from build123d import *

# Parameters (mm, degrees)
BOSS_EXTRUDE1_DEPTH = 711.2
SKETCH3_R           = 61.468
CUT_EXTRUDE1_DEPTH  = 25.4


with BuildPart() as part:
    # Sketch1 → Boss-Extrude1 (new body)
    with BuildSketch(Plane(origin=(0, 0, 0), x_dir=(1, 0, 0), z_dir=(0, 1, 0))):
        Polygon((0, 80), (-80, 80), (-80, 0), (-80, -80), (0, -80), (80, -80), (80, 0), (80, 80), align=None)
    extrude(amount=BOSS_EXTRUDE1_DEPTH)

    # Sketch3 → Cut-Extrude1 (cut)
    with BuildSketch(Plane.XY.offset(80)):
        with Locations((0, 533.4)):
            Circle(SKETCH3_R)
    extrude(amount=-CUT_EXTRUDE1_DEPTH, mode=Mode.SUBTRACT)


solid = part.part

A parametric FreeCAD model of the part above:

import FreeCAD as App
import Part
import Sketcher
Q = App.Units.Quantity


def add_polygon(sketch, points):
    """Adds a closed chain of lines whose ends are joined by coincident constraints."""
    first, n = sketch.GeometryCount, len(points)
    for a, b in zip(points, points[1:] + points[:1]):
        sketch.addGeometry(Part.LineSegment(App.Vector(*a, 0), App.Vector(*b, 0)), False)
    for i in range(n):
        sketch.addConstraint(Sketcher.Constraint("Coincident", first + i, 2, first + (i + 1) % n, 1))

doc = App.newDocument("Part")
body = doc.addObject("PartDesign::Body", "Body")

sketch1 = body.newObject("Sketcher::SketchObject", "Sketch")
sketch1.AttachmentSupport = (doc.getObject("XZ_Plane"), [""])
sketch1.MapMode = "FlatFace"
add_polygon(sketch1, [(-80, -80), (-80, 80), (80, 80), (80, -80)])
sketch1.addConstraint([
    Sketcher.Constraint("Vertical", 0),
    Sketcher.Constraint("Horizontal", 1),
    Sketcher.Constraint("Vertical", 2),
    Sketcher.Constraint("Horizontal", 3),
    Sketcher.Constraint("Symmetric", 0, 2, 2, 2, -1, 1),
    Sketcher.Constraint("Equal", 3, 0),
    Sketcher.Constraint("DistanceX", 1, 1, 1, 2, Q("160 mm")),
])
pad1 = body.newObject("PartDesign::Pad", "Pad")
pad1.Profile = sketch1
pad1.Length = Q("28 in")
pad1.Reversed = True

sketch2 = body.newObject("Sketcher::SketchObject", "Sketch001")
sketch2.AttachmentSupport = (doc.getObject("XY_Plane"), [""])
sketch2.MapMode = "FlatFace"
sketch2.AttachmentOffset = App.Placement(App.Vector(0, 0, 80), App.Rotation())
sketch2.addGeometry(Part.Circle(App.Vector(0, 533.4, 0), App.Vector(0, 0, 1), 61.468), False)
sketch2.addConstraint([
    Sketcher.Constraint("PointOnObject", 0, 3, -2),
    Sketcher.Constraint("Diameter", 0, Q("4.84 in")),
    Sketcher.Constraint("DistanceY", -1, 1, 0, 3, Q("21 in")),
])
pocket1 = body.newObject("PartDesign::Pocket", "Pocket")
pocket1.Profile = sketch2
pocket1.Length = Q("1 in")

doc.recompute()
